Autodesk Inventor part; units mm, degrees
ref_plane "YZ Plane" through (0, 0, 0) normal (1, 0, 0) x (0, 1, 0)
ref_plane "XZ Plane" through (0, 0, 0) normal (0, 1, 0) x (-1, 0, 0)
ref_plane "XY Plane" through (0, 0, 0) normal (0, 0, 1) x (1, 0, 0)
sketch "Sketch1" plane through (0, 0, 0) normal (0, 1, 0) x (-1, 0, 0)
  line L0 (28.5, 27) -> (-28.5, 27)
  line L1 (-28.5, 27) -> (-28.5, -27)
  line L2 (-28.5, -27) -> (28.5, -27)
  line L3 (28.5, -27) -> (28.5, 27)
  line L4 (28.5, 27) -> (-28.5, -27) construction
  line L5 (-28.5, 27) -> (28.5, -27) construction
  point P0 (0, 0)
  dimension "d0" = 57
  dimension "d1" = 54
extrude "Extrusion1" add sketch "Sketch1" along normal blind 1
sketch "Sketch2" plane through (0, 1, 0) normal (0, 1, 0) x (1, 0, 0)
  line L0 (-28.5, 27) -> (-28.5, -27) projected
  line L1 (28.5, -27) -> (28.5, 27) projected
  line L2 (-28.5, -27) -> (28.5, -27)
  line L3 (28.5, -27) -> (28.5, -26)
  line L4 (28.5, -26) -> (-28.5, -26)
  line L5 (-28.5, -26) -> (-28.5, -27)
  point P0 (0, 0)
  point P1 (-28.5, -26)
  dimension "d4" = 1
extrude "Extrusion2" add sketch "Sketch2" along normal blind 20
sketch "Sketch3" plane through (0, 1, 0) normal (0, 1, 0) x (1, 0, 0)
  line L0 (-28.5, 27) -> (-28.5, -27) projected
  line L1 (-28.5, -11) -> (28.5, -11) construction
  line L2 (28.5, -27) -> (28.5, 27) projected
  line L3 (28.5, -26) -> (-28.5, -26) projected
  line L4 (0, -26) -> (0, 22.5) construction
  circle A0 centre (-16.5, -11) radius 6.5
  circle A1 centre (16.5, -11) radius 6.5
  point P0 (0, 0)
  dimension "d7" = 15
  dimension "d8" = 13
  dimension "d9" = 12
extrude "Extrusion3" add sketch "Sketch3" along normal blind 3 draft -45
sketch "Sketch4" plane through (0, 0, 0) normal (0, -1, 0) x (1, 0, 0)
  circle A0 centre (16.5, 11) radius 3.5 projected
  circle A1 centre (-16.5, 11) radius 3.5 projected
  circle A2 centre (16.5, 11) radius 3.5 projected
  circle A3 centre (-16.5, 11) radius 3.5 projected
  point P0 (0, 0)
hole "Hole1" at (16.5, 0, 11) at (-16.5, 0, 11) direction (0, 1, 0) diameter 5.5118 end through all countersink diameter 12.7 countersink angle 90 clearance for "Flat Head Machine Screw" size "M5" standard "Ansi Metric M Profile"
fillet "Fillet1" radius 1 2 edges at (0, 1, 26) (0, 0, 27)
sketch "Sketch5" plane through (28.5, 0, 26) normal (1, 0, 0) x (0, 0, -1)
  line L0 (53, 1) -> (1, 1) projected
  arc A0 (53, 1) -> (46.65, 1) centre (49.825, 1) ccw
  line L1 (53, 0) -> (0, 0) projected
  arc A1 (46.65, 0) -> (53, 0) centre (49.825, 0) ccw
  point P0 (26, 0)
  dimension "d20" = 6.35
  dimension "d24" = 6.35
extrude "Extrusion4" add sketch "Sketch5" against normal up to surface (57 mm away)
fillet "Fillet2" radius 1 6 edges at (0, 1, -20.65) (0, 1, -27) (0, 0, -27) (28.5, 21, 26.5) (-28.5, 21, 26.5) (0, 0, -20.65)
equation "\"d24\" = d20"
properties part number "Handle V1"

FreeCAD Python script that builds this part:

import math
import FreeCAD as App
import Part
import Sketcher
from FreeCAD import Vector
Q = App.Units.Quantity


def edges_at(feature, points):
    """Names of the edges that pass closest to the given points."""
    edges = feature.Shape.Edges
    near = lambda p: min(range(len(edges)), key=lambda i: edges[i].distToShape(Part.Vertex(*p))[0])
    return sorted({f"Edge{near(p) + 1}" for p in points})


def add_polygon(sketch, points):
    """Adds a closed chain of lines whose ends are joined by coincident constraints."""
    first, n = sketch.GeometryCount, len(points)
    for a, b in zip(points, points[1:] + points[:1]):
        sketch.addGeometry(Part.LineSegment(App.Vector(*a, 0), App.Vector(*b, 0)), False)
    for i in range(n):
        sketch.addConstraint(Sketcher.Constraint("Coincident", first + i, 2, first + (i + 1) % n, 1))

doc = App.newDocument("Part")
body = doc.addObject("PartDesign::Body", "Body")

# Sketch on XZ plane
sketch1 = body.newObject("Sketcher::SketchObject", "Sketch")
sketch1.AttachmentSupport = (doc.getObject("XZ_Plane"), [""])
sketch1.MapMode = "FlatFace"
add_polygon(sketch1, [(-28, -27), (-28, 27), (28, 27), (28, -27)])  # lines 0-3
sketch1.addConstraint(Sketcher.Constraint("Vertical", 0))
sketch1.addConstraint(Sketcher.Constraint("Horizontal", 1))
sketch1.addConstraint(Sketcher.Constraint("Vertical", 2))
sketch1.addConstraint(Sketcher.Constraint("Horizontal", 3))
sketch1.addConstraint(Sketcher.Constraint("Symmetric", 0, 2, 2, 2, -1, 1))
sketch1.addConstraint(Sketcher.Constraint("DistanceX", 1, 1, 1, 2, Q("57 mm")))
sketch1.addConstraint(Sketcher.Constraint("DistanceY", 0, 1, 0, 2, Q("54 mm")))
pad1 = body.newObject("PartDesign::Pad", "Pad")
pad1.Profile = sketch1
pad1.Length = 1
pad1.Reversed = True

# Sketch on XZ plane
sketch2 = body.newObject("Sketcher::SketchObject", "Sketch001")
sketch2.AttachmentSupport = (doc.getObject("XZ_Plane"), [""])
sketch2.MapMode = "FlatFace"
sketch2.AttachmentOffset = App.Placement(Vector(0, 0, -1), App.Rotation())
add_polygon(sketch2, [(28.5, 26), (-28.5, 26), (-28.5, 27), (28.5, 27)])  # lines 0-3
sketch2.addConstraint(Sketcher.Constraint("Horizontal", 0))
sketch2.addConstraint(Sketcher.Constraint("Vertical", 1))
sketch2.addConstraint(Sketcher.Constraint("Horizontal", 2))
sketch2.addConstraint(Sketcher.Constraint("Vertical", 3))
sketch2.addConstraint(Sketcher.Constraint("DistanceY", 1, 1, 1, 2, Q("1 mm")))
sketch2.addConstraint(Sketcher.Constraint("DistanceX", 0, 2, 0, 1, Q("57 mm")))
sketch2.addConstraint(Sketcher.Constraint("DistanceY", -1, 1, 0, 2, Q("26 mm")))
sketch2.addConstraint(Sketcher.Constraint("DistanceX", 0, 2, -1, 1, Q("28.5 mm")))
pad2 = body.newObject("PartDesign::Pad", "Pad001")
pad2.Profile = sketch2
pad2.Length = 20
pad2.Reversed = True

# Sketch on XZ plane
sketch3 = body.newObject("Sketcher::SketchObject", "Sketch002")
sketch3.AttachmentSupport = (doc.getObject("XZ_Plane"), [""])
sketch3.MapMode = "FlatFace"
sketch3.AttachmentOffset = App.Placement(Vector(0, 0, -1), App.Rotation())
sketch3.addGeometry(Part.Circle(Vector(-16, 11, 0), Vector(0, 0, 1), 6), False)
sketch3.addGeometry(Part.Circle(Vector(16, 11, 0), Vector(0, 0, 1), 6), False)
sketch3.addConstraint(Sketcher.Constraint("Equal", 0, 1))
sketch3.addConstraint(Sketcher.Constraint("Symmetric", 0, 3, 1, 3, -2))
sketch3.addConstraint(Sketcher.Constraint("Diameter", 0, Q("13 mm")))
sketch3.addConstraint(Sketcher.Constraint("DistanceY", -1, 1, 0, 3, Q("11 mm")))
sketch3.addConstraint(Sketcher.Constraint("DistanceX", 0, 3, 1, 3, Q("33 mm")))
pad3 = body.newObject("PartDesign::Pad", "Pad002")
pad3.Profile = sketch3
pad3.Length = 3
pad3.Reversed = True
pad3.TaperAngle = -45

# Sketch on XZ plane
sketch4 = body.newObject("Sketcher::SketchObject", "Sketch003")
sketch4.AttachmentSupport = (doc.getObject("XZ_Plane"), [""])
sketch4.MapMode = "FlatFace"
sketch4.addGeometry(Part.Circle(Vector(16.5, 11, 0), Vector(0, 0, 1), 2.8), False)
sketch4.addGeometry(Part.Circle(Vector(-16.5, 11, 0), Vector(0, 0, 1), 2.8), False)
sketch4.addConstraint(Sketcher.Constraint("Equal", 0, 1))
sketch4.addConstraint(Sketcher.Constraint("Symmetric", 0, 3, 1, 3, -2))
sketch4.addConstraint(Sketcher.Constraint("DistanceY", -1, 1, 0, 3, Q("11 mm")))
sketch4.addConstraint(Sketcher.Constraint("DistanceX", 1, 3, 0, 3, Q("33 mm")))
sketch4.addConstraint(Sketcher.Constraint("Diameter", 0, Q("5.5118 mm")))
doc.recompute()
hole = body.newObject("PartDesign::Hole", "Hole")
hole.Profile = sketch4
hole.ThreadType = "None"
hole.Diameter = 5.5118
hole.DepthType = "ThroughAll"
hole.HoleCutType = "Countersink"
hole.HoleCutDiameter = 12.7
hole.HoleCutCountersinkAngle = 90
doc.recompute()

fillet = body.newObject("PartDesign::Fillet", "Fillet")
fillet.Base = (hole, edges_at(hole, [(0, 1, 26), (0, 0, 27)]))
fillet.Radius = 1

# Sketch on YZ plane
sketch5 = body.newObject("Sketcher::SketchObject", "Sketch004")
sketch5.AttachmentSupport = (doc.getObject("YZ_Plane"), [""])
sketch5.MapMode = "FlatFace"
sketch5.AttachmentOffset = App.Placement(Vector(0, 0, 28.5), App.Rotation())
sketch5.addGeometry(Part.LineSegment(Vector(1, -20.6, 0), Vector(1, -27, 0)), False)
sketch5.addGeometry(Part.ArcOfCircle(Part.Circle(Vector(1, -23.8, 0), Vector(0, 0, 1), 3.2), math.radians(-90), math.radians(90)), False)
sketch5.addGeometry(Part.ArcOfCircle(Part.Circle(Vector(0, -23.8, 0), Vector(0, 0, 1), 3.2), math.radians(90), math.radians(270)), False)
sketch5.addGeometry(Part.LineSegment(Vector(0, -27, 0), Vector(0, -20.6, 0)), False)
sketch5.addConstraint(Sketcher.Constraint("Coincident", 0, 1, 1, 2))
sketch5.addConstraint(Sketcher.Constraint("Coincident", 1, 1, 0, 2))
sketch5.addConstraint(Sketcher.Constraint("Coincident", 2, 1, 3, 2))
sketch5.addConstraint(Sketcher.Constraint("Coincident", 3, 1, 2, 2))
sketch5.addConstraint(Sketcher.Constraint("Vertical", 0))
sketch5.addConstraint(Sketcher.Constraint("Vertical", 3))
sketch5.addConstraint(Sketcher.Constraint("Equal", 1, 2))
sketch5.addConstraint(Sketcher.Constraint("PointOnObject", 2, 3, -2))
sketch5.addConstraint(Sketcher.Constraint("PointOnObject", 2, 1, -2))
sketch5.addConstraint(Sketcher.Constraint("Horizontal", 1, 3, 2, 3))
sketch5.addConstraint(Sketcher.Constraint("Vertical", 1, 3, 0, 1))
sketch5.addConstraint(Sketcher.Constraint("Radius", 1, Q("3.175 mm")))
sketch5.addConstraint(Sketcher.Constraint("DistanceX", -1, 1, 1, 3, Q("1 mm")))
sketch5.addConstraint(Sketcher.Constraint("DistanceY", 1, 1, -1, 1, Q("27 mm")))
pad4 = body.newObject("PartDesign::Pad", "Pad003")
pad4.Profile = sketch5
pad4.Length = 57
pad4.Reversed = True
doc.recompute()

fillet2 = body.newObject("PartDesign::Fillet", "Fillet001")
fillet2.Base = (pad4, edges_at(pad4, [
    (0, 1, -20.65),
    (0, 1, -27),
    (0, 0, -27),
    (28.5, 21, 26.5),
    (-28.5, 21, 26.5),
    (0, 0, -20.65),
]))
fillet2.Radius = 1

doc.recompute()
